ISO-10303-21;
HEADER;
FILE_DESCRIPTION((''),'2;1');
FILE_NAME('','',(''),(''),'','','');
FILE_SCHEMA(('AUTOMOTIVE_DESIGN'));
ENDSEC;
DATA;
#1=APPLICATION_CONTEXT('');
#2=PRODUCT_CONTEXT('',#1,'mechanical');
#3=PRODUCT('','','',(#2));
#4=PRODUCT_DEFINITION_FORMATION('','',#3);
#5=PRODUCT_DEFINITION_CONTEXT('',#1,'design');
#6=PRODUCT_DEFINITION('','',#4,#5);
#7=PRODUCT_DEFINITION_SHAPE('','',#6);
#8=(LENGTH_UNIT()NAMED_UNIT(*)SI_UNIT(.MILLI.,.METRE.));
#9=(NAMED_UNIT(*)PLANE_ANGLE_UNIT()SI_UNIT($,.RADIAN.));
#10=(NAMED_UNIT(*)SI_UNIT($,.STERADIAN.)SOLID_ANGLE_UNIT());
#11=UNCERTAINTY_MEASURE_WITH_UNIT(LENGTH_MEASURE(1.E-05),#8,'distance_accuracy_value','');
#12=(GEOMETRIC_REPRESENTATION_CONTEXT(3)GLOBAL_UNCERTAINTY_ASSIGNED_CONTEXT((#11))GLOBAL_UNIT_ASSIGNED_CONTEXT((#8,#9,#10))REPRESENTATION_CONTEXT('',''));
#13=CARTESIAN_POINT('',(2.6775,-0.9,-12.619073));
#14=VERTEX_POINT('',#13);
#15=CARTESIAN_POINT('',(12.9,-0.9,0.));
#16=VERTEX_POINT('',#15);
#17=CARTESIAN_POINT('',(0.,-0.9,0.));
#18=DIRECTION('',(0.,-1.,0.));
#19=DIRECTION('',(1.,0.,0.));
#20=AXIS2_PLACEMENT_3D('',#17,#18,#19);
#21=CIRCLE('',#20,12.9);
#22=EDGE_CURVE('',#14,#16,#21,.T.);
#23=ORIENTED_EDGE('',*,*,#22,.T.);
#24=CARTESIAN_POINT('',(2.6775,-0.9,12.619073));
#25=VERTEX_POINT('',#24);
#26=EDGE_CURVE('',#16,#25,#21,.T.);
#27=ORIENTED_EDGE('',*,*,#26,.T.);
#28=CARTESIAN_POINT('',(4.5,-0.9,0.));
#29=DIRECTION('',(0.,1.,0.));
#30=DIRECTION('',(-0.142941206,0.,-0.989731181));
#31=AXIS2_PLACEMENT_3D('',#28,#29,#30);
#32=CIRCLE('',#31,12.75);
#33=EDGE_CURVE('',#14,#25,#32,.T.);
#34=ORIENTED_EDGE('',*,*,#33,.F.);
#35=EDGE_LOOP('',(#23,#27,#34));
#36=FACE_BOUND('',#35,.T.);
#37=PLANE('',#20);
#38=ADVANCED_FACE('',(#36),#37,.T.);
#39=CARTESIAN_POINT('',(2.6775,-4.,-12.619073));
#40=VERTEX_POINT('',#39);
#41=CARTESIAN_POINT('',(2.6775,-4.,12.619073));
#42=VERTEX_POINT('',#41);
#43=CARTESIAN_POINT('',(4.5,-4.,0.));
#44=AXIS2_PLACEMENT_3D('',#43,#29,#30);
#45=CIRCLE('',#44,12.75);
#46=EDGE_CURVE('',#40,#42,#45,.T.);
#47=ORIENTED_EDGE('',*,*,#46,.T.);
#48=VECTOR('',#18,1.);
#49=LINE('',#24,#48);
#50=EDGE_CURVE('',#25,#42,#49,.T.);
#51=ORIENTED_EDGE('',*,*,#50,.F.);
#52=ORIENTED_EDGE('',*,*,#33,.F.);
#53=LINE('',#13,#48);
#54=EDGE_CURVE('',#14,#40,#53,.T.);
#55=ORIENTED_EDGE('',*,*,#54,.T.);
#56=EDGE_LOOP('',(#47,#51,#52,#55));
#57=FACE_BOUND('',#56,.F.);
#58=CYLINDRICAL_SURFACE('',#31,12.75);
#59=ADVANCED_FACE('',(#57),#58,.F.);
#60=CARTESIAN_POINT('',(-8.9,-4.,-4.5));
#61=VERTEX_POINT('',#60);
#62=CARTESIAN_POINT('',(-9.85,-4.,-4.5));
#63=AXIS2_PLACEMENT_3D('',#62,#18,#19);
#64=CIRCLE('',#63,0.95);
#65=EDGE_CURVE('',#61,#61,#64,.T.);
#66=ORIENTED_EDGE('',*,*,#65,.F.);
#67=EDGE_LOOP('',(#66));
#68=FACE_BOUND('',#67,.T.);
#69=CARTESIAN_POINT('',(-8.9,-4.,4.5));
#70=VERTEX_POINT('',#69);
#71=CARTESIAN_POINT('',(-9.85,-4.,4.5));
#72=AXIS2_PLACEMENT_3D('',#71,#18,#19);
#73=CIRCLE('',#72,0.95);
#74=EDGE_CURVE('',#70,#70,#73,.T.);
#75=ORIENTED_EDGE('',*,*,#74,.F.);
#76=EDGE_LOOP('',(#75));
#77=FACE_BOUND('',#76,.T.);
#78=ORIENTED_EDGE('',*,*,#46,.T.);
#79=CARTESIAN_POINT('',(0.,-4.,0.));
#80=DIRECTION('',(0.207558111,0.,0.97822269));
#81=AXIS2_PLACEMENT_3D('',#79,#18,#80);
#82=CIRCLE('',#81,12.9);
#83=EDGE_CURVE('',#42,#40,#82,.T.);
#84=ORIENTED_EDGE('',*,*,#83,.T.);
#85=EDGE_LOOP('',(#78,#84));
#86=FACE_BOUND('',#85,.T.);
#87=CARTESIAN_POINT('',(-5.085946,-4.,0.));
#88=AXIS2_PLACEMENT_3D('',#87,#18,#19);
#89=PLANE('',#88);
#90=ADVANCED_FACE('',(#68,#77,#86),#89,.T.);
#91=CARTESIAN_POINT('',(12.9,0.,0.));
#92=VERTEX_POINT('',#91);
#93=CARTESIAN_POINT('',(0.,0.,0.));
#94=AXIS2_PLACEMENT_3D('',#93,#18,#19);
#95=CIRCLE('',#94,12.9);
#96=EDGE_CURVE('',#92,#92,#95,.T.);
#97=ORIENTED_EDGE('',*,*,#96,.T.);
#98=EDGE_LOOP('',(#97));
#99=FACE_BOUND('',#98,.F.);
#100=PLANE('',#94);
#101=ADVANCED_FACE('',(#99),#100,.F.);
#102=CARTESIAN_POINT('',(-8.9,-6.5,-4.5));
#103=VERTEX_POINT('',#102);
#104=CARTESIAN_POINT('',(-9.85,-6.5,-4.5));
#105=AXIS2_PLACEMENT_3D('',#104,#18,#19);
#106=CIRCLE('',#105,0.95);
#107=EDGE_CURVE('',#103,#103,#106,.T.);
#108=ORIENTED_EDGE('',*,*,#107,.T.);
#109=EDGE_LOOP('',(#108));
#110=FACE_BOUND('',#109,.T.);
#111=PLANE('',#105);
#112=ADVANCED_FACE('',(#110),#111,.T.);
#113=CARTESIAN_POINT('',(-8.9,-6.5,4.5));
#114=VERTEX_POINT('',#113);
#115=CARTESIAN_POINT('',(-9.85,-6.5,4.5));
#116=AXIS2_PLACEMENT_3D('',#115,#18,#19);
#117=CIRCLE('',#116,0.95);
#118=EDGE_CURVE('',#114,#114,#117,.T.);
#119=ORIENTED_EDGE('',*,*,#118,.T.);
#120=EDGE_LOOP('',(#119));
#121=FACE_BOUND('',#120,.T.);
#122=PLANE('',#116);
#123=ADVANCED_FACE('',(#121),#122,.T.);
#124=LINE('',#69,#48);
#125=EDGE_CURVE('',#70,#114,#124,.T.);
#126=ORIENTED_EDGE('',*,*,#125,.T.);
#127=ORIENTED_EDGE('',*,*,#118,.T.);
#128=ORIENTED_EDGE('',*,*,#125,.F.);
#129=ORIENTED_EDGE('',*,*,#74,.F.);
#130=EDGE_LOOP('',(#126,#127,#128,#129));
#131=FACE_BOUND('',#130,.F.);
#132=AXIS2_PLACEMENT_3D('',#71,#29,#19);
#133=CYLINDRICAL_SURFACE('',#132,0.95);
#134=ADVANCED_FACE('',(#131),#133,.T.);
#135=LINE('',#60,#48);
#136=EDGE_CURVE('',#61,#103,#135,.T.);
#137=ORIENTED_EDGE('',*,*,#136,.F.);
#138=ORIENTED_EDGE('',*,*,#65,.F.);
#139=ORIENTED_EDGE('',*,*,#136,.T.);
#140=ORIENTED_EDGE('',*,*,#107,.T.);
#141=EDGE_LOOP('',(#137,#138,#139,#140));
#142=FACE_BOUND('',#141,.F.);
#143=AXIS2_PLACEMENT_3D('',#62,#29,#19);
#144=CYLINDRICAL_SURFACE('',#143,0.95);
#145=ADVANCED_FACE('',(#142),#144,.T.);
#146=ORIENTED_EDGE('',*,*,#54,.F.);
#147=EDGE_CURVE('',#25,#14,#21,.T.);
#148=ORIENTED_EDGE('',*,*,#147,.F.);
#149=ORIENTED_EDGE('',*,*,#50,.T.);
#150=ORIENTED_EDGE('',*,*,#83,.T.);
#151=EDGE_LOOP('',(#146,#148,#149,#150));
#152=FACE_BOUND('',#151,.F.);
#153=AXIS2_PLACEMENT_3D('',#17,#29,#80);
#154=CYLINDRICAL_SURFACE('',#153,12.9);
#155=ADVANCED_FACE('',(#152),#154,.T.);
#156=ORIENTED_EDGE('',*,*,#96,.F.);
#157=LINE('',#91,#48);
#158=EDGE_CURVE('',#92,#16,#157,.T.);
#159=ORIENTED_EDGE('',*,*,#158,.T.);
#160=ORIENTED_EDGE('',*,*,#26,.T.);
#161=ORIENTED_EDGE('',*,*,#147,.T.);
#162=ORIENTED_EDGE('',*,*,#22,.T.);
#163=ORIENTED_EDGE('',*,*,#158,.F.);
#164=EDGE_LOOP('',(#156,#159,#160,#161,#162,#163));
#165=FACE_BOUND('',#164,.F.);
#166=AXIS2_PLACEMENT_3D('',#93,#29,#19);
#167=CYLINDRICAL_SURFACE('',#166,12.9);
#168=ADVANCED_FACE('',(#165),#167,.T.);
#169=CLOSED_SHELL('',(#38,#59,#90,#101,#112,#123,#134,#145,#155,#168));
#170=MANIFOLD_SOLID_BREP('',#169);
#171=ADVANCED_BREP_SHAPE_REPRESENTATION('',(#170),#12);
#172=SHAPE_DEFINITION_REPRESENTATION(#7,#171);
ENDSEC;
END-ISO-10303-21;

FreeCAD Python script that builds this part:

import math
import FreeCAD as App
import Part
import Sketcher
from FreeCAD import Vector
Q = App.Units.Quantity

doc = App.newDocument("Part")
params = doc.addObject("Spreadsheet::Sheet", "Params")
for row, (alias, value) in enumerate([
    ("sketch1_diameter", "25.8 mm"),
    ("pad1_length", "0.9 mm"),
    ("sketch2_radius", "12.9 mm"),
    ("sketch2_radius2", "12.75 mm"),
    ("pad2_length", "3.1 mm"),
    ("sketch3_diameter", "1.9 mm"),
    ("pad3_length", "2.5 mm"),
], start=1):
    params.set(f"A{row}", alias)
    params.set(f"B{row}", "=" + value)
    params.setAlias(f"B{row}", alias)

body = doc.addObject("PartDesign::Body", "Body")

sketch1 = doc.addObject("Sketcher::SketchObject", "Sketch")
body.addObject(sketch1)
sketch1.AttachmentSupport = (doc.XZ_Plane, [""])
sketch1.MapMode = "FlatFace"
sketch1.addGeometry(Part.Circle(Vector(0, 0, 0), Vector(0, 0, 1), 13), False)
sketch1.addConstraint([
    Sketcher.Constraint("Coincident", 0, 3, -1, 1),
    Sketcher.Constraint("Diameter", 0, Q("25.8 mm")),
])
sketch1.setExpression("Constraints[1]", "Params.sketch1_diameter")
pad1 = doc.addObject("PartDesign::Pad", "Pad")
body.addObject(pad1)
pad1.Profile = sketch1
pad1.setExpression("Length", "Params.pad1_length")

sketch2 = doc.addObject("Sketcher::SketchObject", "Sketch001")
body.addObject(sketch2)
sketch2.AttachmentSupport = (doc.XZ_Plane, [""])
sketch2.MapMode = "FlatFace"
sketch2.AttachmentOffset = App.Placement(Vector(0, 0, 0.9), App.Rotation())
sketch2.addGeometry([
    Part.ArcOfCircle(Part.Circle(Vector(5, 0, 0), Vector(0, 0, 1), 13), math.radians(98), math.radians(262)),
    Part.ArcOfCircle(Part.Circle(Vector(0, 0, 0), Vector(0, 0, 1), 13), math.radians(78), math.radians(282)),
], False)
sketch2.addConstraint([
    Sketcher.Constraint("Coincident", 0, 1, 1, 1),
    Sketcher.Constraint("Coincident", 1, 2, 0, 2),
    Sketcher.Constraint("Coincident", 1, 3, -1, 1),
    Sketcher.Constraint("PointOnObject", 0, 3, -1),
    Sketcher.Constraint("Radius", 1, Q("12.9 mm")),
    Sketcher.Constraint("Radius", 0, Q("12.75 mm")),
    Sketcher.Constraint("DistanceX", -1, 1, 0, 3, Q("4.5 mm")),
])
sketch2.setExpression("Constraints[4]", "Params.sketch2_radius")
sketch2.setExpression("Constraints[5]", "Params.sketch2_radius2")
pad2 = doc.addObject("PartDesign::Pad", "Pad001")
body.addObject(pad2)
pad2.Profile = sketch2
pad2.setExpression("Length", "Params.pad2_length")

sketch3 = doc.addObject("Sketcher::SketchObject", "Sketch002")
body.addObject(sketch3)
sketch3.AttachmentSupport = (doc.XZ_Plane, [""])
sketch3.MapMode = "FlatFace"
sketch3.AttachmentOffset = App.Placement(Vector(0, 0, 4), App.Rotation())
sketch3.addGeometry([
    Part.Circle(Vector(-9.8, 4.5, 0), Vector(0, 0, 1), 0.9),
    Part.Circle(Vector(-9.8, -4.5, 0), Vector(0, 0, 1), 0.9),
], False)
sketch3.addConstraint([
    Sketcher.Constraint("Equal", 0, 1),
    Sketcher.Constraint("Symmetric", 0, 3, 1, 3, -1),
    Sketcher.Constraint("Diameter", 0, Q("1.9 mm")),
    Sketcher.Constraint("DistanceY", 1, 3, 0, 3, Q("9 mm")),
    Sketcher.Constraint("DistanceX", 0, 3, -1, 1, Q("9.85 mm")),
])
sketch3.setExpression("Constraints[2]", "Params.sketch3_diameter")
pad3 = doc.addObject("PartDesign::Pad", "Pad002")
body.addObject(pad3)
pad3.Profile = sketch3
pad3.setExpression("Length", "Params.pad3_length")

doc.recompute()
